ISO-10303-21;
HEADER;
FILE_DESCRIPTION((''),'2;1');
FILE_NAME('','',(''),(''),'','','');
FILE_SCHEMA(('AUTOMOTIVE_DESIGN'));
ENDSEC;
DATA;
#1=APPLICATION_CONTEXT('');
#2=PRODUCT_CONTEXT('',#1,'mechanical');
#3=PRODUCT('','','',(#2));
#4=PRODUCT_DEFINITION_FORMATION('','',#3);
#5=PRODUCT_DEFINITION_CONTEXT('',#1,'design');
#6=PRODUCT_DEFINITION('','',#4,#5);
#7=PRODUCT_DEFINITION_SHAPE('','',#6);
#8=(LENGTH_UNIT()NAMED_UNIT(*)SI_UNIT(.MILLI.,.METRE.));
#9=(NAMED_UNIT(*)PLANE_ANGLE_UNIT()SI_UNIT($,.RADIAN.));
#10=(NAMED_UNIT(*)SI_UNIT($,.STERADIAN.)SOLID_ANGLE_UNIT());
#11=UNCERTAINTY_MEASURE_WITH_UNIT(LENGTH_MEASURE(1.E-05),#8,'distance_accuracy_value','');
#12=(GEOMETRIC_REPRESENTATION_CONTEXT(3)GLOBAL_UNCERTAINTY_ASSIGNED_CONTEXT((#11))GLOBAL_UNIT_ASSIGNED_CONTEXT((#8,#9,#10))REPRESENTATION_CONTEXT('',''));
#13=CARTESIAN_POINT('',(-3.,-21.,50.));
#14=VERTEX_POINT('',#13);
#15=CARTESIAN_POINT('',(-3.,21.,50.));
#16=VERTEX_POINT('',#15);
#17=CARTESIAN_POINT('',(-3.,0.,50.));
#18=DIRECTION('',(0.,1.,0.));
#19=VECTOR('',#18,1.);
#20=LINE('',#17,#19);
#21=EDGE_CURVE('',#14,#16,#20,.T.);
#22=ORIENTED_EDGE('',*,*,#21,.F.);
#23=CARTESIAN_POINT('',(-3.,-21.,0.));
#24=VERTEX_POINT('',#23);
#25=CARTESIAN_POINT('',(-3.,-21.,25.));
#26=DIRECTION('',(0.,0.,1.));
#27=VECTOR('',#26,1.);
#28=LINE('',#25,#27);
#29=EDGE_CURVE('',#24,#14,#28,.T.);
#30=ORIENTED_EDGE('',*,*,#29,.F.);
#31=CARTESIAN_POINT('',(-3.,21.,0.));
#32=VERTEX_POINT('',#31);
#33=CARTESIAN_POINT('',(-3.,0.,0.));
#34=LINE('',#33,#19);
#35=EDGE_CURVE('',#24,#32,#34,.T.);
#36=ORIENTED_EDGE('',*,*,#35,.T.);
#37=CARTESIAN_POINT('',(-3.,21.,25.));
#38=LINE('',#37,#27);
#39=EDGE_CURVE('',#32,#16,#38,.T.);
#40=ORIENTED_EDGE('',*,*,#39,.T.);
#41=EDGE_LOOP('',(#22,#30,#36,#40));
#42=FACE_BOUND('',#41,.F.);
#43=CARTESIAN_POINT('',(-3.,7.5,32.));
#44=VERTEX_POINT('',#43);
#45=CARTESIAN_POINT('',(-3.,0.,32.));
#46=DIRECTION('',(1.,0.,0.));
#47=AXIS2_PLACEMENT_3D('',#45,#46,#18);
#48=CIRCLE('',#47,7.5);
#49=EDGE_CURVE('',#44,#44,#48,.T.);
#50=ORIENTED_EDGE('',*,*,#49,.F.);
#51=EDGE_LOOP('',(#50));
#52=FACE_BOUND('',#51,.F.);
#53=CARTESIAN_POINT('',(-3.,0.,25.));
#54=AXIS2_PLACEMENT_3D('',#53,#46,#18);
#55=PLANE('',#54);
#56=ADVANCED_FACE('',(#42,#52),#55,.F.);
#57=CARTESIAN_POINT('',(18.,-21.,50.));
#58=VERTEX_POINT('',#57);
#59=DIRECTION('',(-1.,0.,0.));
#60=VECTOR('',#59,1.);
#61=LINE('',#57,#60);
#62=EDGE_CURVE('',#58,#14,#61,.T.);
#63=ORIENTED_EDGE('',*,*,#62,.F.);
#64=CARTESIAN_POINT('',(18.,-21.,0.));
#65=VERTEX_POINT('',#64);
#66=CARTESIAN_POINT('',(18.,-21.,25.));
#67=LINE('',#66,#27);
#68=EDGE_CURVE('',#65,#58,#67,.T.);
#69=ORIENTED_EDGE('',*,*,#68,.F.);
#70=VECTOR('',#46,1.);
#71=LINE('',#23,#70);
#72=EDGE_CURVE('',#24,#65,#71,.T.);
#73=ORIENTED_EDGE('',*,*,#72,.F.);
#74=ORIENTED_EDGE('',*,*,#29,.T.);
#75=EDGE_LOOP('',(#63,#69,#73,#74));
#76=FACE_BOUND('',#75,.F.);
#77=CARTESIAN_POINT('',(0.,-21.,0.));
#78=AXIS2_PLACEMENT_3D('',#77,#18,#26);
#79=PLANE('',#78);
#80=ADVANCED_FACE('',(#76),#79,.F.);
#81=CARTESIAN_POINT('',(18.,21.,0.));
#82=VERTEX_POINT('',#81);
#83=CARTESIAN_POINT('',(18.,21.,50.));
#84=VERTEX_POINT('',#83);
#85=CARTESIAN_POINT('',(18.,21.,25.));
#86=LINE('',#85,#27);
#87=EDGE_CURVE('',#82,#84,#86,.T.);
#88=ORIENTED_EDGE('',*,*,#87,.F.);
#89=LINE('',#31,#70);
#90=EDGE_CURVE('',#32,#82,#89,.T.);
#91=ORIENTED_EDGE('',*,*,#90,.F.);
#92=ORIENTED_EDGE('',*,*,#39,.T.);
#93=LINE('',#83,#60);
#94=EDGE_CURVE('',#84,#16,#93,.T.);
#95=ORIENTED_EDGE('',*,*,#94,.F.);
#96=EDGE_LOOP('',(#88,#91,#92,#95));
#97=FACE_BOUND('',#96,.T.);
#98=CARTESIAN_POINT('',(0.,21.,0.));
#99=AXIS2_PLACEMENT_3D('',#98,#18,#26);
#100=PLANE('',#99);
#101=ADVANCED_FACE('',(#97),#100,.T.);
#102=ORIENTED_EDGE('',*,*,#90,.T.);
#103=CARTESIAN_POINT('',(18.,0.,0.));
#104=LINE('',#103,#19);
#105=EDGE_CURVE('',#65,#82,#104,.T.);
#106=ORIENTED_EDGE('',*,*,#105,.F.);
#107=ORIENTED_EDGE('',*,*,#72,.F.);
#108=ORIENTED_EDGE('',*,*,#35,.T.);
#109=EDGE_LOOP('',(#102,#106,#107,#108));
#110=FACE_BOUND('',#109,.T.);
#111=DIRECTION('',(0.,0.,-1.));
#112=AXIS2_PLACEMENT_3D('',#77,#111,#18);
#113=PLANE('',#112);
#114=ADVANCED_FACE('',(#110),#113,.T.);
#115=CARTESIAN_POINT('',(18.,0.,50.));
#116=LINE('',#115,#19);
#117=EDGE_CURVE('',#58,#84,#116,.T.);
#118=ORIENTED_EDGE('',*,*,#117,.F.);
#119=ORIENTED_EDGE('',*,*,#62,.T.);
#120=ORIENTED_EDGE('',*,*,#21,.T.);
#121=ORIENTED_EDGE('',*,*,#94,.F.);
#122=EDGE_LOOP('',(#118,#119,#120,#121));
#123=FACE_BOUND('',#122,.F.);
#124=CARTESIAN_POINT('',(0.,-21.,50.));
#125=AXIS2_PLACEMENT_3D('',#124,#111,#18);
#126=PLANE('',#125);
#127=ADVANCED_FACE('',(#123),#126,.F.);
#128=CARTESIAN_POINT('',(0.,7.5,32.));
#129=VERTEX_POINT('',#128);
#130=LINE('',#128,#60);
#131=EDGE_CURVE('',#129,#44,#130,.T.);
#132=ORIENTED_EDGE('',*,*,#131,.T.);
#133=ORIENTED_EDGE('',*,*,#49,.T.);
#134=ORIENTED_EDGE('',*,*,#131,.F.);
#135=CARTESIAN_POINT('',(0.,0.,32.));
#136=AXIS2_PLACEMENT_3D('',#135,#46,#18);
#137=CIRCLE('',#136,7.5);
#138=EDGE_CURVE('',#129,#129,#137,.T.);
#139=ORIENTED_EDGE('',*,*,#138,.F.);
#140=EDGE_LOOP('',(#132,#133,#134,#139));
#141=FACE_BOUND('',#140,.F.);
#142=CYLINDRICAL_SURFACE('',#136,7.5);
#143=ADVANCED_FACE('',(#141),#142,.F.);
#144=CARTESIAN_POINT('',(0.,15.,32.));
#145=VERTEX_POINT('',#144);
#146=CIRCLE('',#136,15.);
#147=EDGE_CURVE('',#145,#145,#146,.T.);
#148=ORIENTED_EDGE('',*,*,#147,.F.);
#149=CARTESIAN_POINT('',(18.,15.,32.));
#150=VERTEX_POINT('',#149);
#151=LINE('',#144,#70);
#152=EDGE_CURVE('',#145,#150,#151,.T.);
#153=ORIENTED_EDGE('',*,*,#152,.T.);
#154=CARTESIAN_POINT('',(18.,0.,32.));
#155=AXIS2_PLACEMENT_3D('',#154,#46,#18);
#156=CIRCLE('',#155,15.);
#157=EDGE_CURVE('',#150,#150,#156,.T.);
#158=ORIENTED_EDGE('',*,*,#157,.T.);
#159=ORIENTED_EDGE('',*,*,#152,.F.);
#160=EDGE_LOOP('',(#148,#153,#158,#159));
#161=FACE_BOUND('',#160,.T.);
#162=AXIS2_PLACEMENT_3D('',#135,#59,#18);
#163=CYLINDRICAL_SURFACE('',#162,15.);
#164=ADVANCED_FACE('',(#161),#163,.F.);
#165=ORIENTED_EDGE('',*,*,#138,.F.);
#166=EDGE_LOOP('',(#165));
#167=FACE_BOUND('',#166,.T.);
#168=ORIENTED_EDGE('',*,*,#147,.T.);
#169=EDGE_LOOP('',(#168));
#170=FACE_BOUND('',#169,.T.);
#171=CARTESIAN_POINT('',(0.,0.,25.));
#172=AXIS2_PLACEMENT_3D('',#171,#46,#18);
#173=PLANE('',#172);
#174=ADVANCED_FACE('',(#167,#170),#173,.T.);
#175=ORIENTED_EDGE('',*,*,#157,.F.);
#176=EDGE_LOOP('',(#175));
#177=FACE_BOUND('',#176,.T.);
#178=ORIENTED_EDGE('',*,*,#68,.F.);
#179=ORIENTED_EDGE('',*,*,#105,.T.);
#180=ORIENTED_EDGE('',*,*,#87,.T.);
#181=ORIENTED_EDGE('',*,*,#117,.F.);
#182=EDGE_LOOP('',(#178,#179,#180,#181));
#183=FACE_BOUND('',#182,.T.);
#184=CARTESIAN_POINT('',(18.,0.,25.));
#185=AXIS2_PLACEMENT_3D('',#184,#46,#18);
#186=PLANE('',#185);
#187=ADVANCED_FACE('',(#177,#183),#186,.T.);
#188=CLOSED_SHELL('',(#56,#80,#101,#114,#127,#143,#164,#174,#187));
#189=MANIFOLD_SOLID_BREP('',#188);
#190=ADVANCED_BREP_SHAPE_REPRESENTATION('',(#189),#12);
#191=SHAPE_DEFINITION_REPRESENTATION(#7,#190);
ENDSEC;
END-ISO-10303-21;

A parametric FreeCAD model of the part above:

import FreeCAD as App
import Part
import Sketcher
Q = App.Units.Quantity

doc = App.newDocument("Part")
params = doc.addObject("Spreadsheet::Sheet", "Params")
for row, (alias, value) in enumerate([
    ("sketch1_diameter", "30 mm"),
    ("sketch1_width", "42 mm"),
    ("sketch1_height", "50 mm"),
    ("pad1_length", "18 mm"),
    ("sketch2_diameter", "15 mm"),
    ("sketch2_width", "42 mm"),
    ("sketch2_height", "50 mm"),
    ("pad2_length", "3 mm"),
], start=1):
    params.set(f"A{row}", alias)
    params.set(f"B{row}", "=" + value)
    params.setAlias(f"B{row}", alias)

body = doc.addObject("PartDesign::Body", "Body")

sketch1 = body.newObject("Sketcher::SketchObject", "Sketch")
sketch1.AttachmentSupport = (doc.getObject("YZ_Plane"), [""])
sketch1.MapMode = "FlatFace"
sketch1.addGeometry([
    Part.LineSegment(App.Vector(-21, 50, 0), App.Vector(-21, 0, 0)),
    Part.LineSegment(App.Vector(-21, 0, 0), App.Vector(21, 0, 0)),
    Part.LineSegment(App.Vector(21, 0, 0), App.Vector(21, 50, 0)),
    Part.LineSegment(App.Vector(21, 50, 0), App.Vector(-21, 50, 0)),
    Part.Circle(App.Vector(0, 32, 0), App.Vector(0, 0, 1), 15),
], False)
sketch1.addConstraint([
    Sketcher.Constraint("Coincident", 0, 2, 1, 1),
    Sketcher.Constraint("Coincident", 1, 2, 2, 1),
    Sketcher.Constraint("Coincident", 2, 2, 3, 1),
    Sketcher.Constraint("Coincident", 3, 2, 0, 1),
    Sketcher.Constraint("Vertical", 0),
    Sketcher.Constraint("Horizontal", 1),
    Sketcher.Constraint("Vertical", 2),
    Sketcher.Constraint("Horizontal", 3),
    Sketcher.Constraint("Symmetric", 0, 2, 1, 2, -1, 1),
    Sketcher.Constraint("PointOnObject", 4, 3, -2),
    Sketcher.Constraint("Diameter", 4, Q("30 mm")),
    Sketcher.Constraint("DistanceX", 1, 1, 1, 2, Q("42 mm")),
    Sketcher.Constraint("DistanceY", 0, 2, 0, 1, Q("50 mm")),
    Sketcher.Constraint("DistanceY", -1, 1, 4, 3, Q("32 mm")),
])
sketch1.setExpression("Constraints[10]", "Params.sketch1_diameter")
sketch1.setExpression("Constraints[11]", "Params.sketch1_width")
sketch1.setExpression("Constraints[12]", "Params.sketch1_height")
pad1 = body.newObject("PartDesign::Pad", "Pad")
pad1.Profile = sketch1
pad1.setExpression("Length", "Params.pad1_length")

sketch2 = body.newObject("Sketcher::SketchObject", "Sketch001")
sketch2.AttachmentSupport = (doc.getObject("YZ_Plane"), [""])
sketch2.MapMode = "FlatFace"
sketch2.addGeometry([
    Part.LineSegment(App.Vector(-21, 50, 0), App.Vector(-21, 0, 0)),
    Part.LineSegment(App.Vector(-21, 0, 0), App.Vector(21, 0, 0)),
    Part.LineSegment(App.Vector(21, 0, 0), App.Vector(21, 50, 0)),
    Part.LineSegment(App.Vector(21, 50, 0), App.Vector(-21, 50, 0)),
    Part.Circle(App.Vector(0, 32, 0), App.Vector(0, 0, 1), 8),
], False)
sketch2.addConstraint([
    Sketcher.Constraint("Coincident", 0, 2, 1, 1),
    Sketcher.Constraint("Coincident", 1, 2, 2, 1),
    Sketcher.Constraint("Coincident", 2, 2, 3, 1),
    Sketcher.Constraint("Coincident", 3, 2, 0, 1),
    Sketcher.Constraint("Vertical", 0),
    Sketcher.Constraint("Horizontal", 1),
    Sketcher.Constraint("Vertical", 2),
    Sketcher.Constraint("Horizontal", 3),
    Sketcher.Constraint("Symmetric", 0, 2, 1, 2, -1, 1),
    Sketcher.Constraint("PointOnObject", 4, 3, -2),
    Sketcher.Constraint("Diameter", 4, Q("15 mm")),
    Sketcher.Constraint("DistanceX", 1, 1, 1, 2, Q("42 mm")),
    Sketcher.Constraint("DistanceY", 0, 2, 0, 1, Q("50 mm")),
    Sketcher.Constraint("DistanceY", -1, 1, 4, 3, Q("32 mm")),
])
sketch2.setExpression("Constraints[10]", "Params.sketch2_diameter")
sketch2.setExpression("Constraints[11]", "Params.sketch2_width")
sketch2.setExpression("Constraints[12]", "Params.sketch2_height")
pad2 = body.newObject("PartDesign::Pad", "Pad001")
pad2.Profile = sketch2
pad2.setExpression("Length", "Params.pad2_length")
pad2.Reversed = True

doc.recompute()
